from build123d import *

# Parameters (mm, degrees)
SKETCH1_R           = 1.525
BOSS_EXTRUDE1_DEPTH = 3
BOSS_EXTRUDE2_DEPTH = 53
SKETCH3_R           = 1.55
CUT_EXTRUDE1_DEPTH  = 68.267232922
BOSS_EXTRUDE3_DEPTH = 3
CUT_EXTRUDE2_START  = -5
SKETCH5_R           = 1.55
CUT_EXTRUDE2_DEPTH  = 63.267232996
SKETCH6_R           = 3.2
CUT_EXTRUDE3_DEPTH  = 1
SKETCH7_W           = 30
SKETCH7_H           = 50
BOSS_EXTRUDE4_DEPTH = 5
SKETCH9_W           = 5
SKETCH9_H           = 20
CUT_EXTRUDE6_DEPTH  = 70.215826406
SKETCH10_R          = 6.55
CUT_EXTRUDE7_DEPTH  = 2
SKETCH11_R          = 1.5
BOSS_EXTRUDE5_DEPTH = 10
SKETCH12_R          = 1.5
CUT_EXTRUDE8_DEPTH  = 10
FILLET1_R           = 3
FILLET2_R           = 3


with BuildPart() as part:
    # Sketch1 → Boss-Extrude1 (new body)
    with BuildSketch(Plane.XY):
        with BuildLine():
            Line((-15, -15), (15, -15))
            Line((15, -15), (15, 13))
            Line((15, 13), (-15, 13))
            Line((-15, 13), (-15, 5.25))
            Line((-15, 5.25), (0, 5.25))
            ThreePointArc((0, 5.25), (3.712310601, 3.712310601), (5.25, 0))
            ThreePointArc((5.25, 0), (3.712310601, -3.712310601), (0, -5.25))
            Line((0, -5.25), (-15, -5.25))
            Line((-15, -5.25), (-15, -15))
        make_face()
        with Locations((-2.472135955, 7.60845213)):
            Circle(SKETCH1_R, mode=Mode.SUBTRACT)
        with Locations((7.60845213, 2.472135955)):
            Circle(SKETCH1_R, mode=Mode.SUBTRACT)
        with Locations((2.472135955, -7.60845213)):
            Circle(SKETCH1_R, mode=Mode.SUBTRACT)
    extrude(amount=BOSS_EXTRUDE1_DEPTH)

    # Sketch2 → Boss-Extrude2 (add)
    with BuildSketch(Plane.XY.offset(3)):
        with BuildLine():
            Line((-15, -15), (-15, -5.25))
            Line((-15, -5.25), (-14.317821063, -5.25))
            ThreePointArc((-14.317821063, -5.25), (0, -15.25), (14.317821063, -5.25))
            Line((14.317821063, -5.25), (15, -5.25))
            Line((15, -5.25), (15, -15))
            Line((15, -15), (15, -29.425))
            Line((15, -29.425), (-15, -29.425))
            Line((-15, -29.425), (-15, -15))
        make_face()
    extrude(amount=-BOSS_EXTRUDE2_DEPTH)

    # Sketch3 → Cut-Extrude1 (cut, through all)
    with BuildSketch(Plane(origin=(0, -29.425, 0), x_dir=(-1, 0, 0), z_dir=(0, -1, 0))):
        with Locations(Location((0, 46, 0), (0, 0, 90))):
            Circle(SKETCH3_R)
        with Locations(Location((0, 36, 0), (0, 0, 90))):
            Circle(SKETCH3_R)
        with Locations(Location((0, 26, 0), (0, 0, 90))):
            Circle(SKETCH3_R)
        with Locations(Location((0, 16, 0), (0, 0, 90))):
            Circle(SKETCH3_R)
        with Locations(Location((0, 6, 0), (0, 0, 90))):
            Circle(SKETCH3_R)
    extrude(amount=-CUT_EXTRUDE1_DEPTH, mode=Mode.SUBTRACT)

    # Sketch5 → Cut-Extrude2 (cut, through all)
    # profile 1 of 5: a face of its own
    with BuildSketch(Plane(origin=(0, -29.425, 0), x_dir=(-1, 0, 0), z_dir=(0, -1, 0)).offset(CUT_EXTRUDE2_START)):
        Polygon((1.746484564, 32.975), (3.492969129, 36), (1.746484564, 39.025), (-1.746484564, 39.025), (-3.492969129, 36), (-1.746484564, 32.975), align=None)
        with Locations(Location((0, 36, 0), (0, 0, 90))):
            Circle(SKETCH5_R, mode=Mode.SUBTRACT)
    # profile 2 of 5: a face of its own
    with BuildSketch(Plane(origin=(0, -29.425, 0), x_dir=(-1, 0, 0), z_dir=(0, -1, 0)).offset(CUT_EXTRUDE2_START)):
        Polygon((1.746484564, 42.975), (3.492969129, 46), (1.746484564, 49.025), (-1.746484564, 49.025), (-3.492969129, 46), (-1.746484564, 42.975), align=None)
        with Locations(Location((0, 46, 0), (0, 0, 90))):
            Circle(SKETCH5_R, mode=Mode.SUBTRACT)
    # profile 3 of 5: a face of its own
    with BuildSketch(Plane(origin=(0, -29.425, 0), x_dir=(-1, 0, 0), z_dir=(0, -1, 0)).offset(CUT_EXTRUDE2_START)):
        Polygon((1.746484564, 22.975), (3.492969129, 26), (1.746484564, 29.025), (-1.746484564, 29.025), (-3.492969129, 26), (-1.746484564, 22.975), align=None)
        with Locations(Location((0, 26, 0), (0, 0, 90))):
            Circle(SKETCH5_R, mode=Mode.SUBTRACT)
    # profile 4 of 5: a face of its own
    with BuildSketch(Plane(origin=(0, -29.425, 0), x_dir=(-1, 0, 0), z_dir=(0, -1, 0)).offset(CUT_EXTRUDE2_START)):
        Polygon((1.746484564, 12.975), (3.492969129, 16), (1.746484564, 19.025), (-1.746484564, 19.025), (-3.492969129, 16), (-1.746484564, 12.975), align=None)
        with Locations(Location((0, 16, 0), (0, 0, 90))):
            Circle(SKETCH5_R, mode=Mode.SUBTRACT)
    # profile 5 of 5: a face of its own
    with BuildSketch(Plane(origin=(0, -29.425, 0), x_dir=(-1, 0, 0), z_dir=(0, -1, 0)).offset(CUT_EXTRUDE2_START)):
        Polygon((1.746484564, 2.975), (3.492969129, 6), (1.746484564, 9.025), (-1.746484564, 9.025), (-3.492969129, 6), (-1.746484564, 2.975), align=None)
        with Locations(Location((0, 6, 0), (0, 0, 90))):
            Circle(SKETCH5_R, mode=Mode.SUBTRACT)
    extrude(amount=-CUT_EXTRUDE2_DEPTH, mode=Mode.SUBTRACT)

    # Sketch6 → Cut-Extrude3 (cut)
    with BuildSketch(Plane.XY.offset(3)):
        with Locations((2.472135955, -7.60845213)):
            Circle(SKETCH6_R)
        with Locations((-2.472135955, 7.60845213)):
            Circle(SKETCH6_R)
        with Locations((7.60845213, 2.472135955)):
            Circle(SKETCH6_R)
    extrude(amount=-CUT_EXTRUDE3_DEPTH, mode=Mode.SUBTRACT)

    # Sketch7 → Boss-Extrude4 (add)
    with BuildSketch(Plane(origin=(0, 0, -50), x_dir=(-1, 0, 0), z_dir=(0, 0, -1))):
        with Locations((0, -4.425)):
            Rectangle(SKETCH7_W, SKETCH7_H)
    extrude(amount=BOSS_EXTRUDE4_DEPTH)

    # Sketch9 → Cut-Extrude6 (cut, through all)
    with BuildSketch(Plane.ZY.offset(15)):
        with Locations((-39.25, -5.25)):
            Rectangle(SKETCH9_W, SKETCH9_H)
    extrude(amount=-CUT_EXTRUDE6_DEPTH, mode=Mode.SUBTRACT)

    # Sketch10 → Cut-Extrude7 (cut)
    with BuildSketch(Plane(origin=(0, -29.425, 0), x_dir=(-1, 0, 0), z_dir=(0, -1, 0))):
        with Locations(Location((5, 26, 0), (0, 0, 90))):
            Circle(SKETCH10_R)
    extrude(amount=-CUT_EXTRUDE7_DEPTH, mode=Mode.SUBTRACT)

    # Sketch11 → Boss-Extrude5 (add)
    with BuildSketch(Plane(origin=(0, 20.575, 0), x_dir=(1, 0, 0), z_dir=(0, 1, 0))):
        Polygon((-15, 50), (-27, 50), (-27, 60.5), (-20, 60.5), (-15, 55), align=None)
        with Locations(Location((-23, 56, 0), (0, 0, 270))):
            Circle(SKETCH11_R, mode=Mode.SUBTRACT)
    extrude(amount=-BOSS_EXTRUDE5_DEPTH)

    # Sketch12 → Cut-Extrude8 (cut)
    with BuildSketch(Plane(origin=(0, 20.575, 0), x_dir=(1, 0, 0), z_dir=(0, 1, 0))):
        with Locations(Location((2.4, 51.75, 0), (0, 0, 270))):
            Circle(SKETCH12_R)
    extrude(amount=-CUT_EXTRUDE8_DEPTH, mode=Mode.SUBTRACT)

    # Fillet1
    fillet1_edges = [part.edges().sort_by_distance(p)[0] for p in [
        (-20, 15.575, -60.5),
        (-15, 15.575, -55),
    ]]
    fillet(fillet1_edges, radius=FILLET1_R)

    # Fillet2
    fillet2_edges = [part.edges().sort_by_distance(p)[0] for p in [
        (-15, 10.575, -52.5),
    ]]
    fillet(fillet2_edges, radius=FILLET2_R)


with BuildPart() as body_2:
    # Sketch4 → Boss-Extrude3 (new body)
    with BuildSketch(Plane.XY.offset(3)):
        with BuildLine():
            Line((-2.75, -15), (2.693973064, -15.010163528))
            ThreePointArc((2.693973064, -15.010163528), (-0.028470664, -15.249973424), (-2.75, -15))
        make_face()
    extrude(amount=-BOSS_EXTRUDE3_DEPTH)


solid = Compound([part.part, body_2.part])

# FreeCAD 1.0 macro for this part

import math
import FreeCAD as App
import Part
import Sketcher
from FreeCAD import Vector
Q = App.Units.Quantity


def edges_at(feature, points):
    """Names of the edges that pass closest to the given points."""
    edges = feature.Shape.Edges
    near = lambda p: min(range(len(edges)), key=lambda i: edges[i].distToShape(Part.Vertex(*p))[0])
    return sorted({f"Edge{near(p) + 1}" for p in points})


def add_polygon(sketch, points):
    """Adds a closed chain of lines whose ends are joined by coincident constraints."""
    first, n = sketch.GeometryCount, len(points)
    for a, b in zip(points, points[1:] + points[:1]):
        sketch.addGeometry(Part.LineSegment(App.Vector(*a, 0), App.Vector(*b, 0)), False)
    for i in range(n):
        sketch.addConstraint(Sketcher.Constraint("Coincident", first + i, 2, first + (i + 1) % n, 1))

doc = App.newDocument("Part")
body = doc.addObject("PartDesign::Body", "Body")

sketch1 = body.newObject("Sketcher::SketchObject", "Sketch")
sketch1.AttachmentSupport = (doc.getObject("XY_Plane"), [""])
sketch1.MapMode = "FlatFace"
sketch1.addGeometry([
    Part.LineSegment(Vector(-15, -15, 0), Vector(15, -15, 0)),
    Part.LineSegment(Vector(15, -15, 0), Vector(15, 13, 0)),
    Part.LineSegment(Vector(15, 13, 0), Vector(-15, 13, 0)),
    Part.LineSegment(Vector(-15, 13, 0), Vector(-15, 5.25, 0)),
    Part.LineSegment(Vector(-15, 5.25, 0), Vector(0, 5.25, 0)),
    Part.ArcOfCircle(Part.Circle(Vector(0, 0, 0), Vector(0, 0, 1), 5.25), math.radians(0), math.radians(90)),
    Part.ArcOfCircle(Part.Circle(Vector(0, 0, 0), Vector(0, 0, 1), 5.25), math.radians(-90), math.radians(0)),
    Part.LineSegment(Vector(0, -5.25, 0), Vector(-15, -5.25, 0)),
    Part.LineSegment(Vector(-15, -5.25, 0), Vector(-15, -15, 0)),
    Part.Circle(Vector(2.472136, -7.608452, 0), Vector(0, 0, 1), 1.525),
    Part.Circle(Vector(-2.472136, 7.608452, 0), Vector(0, 0, 1), 1.525),
    Part.Circle(Vector(7.608452, 2.472136, 0), Vector(0, 0, 1), 1.525),
], False)
sketch1.addConstraint([
    Sketcher.Constraint("Coincident", 0, 2, 1, 1),
    Sketcher.Constraint("Coincident", 1, 2, 2, 1),
    Sketcher.Constraint("Coincident", 2, 2, 3, 1),
    Sketcher.Constraint("Coincident", 3, 2, 4, 1),
    Sketcher.Constraint("Tangent", 4, 2, 5, 2),
    Sketcher.Constraint("Tangent", 5, 1, 6, 2),
    Sketcher.Constraint("Tangent", 6, 1, 7, 1),
    Sketcher.Constraint("Coincident", 7, 2, 8, 1),
    Sketcher.Constraint("Coincident", 8, 2, 0, 1),
    Sketcher.Constraint("Horizontal", 0),
    Sketcher.Constraint("Vertical", 1),
    Sketcher.Constraint("Horizontal", 2),
    Sketcher.Constraint("Vertical", 3),
    Sketcher.Constraint("Horizontal", 4),
    Sketcher.Constraint("Horizontal", 7),
    Sketcher.Constraint("Vertical", 8),
    Sketcher.Constraint("Coincident", 5, 3, -1, 1),
    Sketcher.Constraint("Equal", 5, 6),
    Sketcher.Constraint("Equal", 9, 10),
    Sketcher.Constraint("Equal", 10, 11),
    Sketcher.Constraint("Symmetric", 9, 3, 10, 3, -1, 1),
    Sketcher.Constraint("PointOnObject", 5, 1, -1),
    Sketcher.Constraint("Vertical", 3, 2, 7, 2),
    Sketcher.Constraint("Diameter", 9, Q("3.05 mm")),
    Sketcher.Constraint("DistanceX", 0, 1, 0, 2, Q("30 mm")),
    Sketcher.Constraint("DistanceX", 4, 1, 4, 2, Q("15 mm")),
    Sketcher.Constraint("DistanceY", 1, 1, 1, 2, Q("28 mm")),
    Sketcher.Constraint("Radius", 5, Q("5.25 mm")),
    Sketcher.Constraint("DistanceY", 0, 2, -1, 1, Q("15 mm")),
    Sketcher.Constraint("DistanceX", 10, 3, 9, 3, Q("4.944272 mm")),
    Sketcher.Constraint("DistanceY", 9, 3, 11, 3, Q("10.080588 mm")),
    Sketcher.Constraint("DistanceX", 10, 3, 11, 3, Q("10.080588 mm")),
    Sketcher.Constraint("DistanceY", 9, 3, -1, 1, Q("7.608452 mm")),
])
pad1 = body.newObject("PartDesign::Pad", "Pad")
pad1.Profile = sketch1
pad1.Length = 3

sketch2 = body.newObject("Sketcher::SketchObject", "Sketch001")
sketch2.AttachmentSupport = (doc.getObject("XY_Plane"), [""])
sketch2.MapMode = "FlatFace"
sketch2.AttachmentOffset = App.Placement(Vector(0, 0, 3), App.Rotation())
sketch2.addGeometry([
    Part.LineSegment(Vector(-14.317821, -5.25, 0), Vector(-15, -5.25, 0)),
    Part.LineSegment(Vector(-15, -5.25, 0), Vector(-15, -29.425, 0)),
    Part.LineSegment(Vector(-15, -29.425, 0), Vector(15, -29.425, 0)),
    Part.LineSegment(Vector(15, -29.425, 0), Vector(15, -5.25, 0)),
    Part.LineSegment(Vector(15, -5.25, 0), Vector(14.317821, -5.25, 0)),
    Part.ArcOfCircle(Part.Circle(Vector(0, 0, 0), Vector(0, 0, 1), 15.25), math.radians(-159.86323), math.radians(-20.13677)),
], False)
sketch2.addConstraint([
    Sketcher.Constraint("Coincident", 0, 2, 1, 1),
    Sketcher.Constraint("Coincident", 1, 2, 2, 1),
    Sketcher.Constraint("Coincident", 2, 2, 3, 1),
    Sketcher.Constraint("Coincident", 3, 2, 4, 1),
    Sketcher.Constraint("Coincident", 4, 2, 5, 2),
    Sketcher.Constraint("Coincident", 5, 1, 0, 1),
    Sketcher.Constraint("Horizontal", 0),
    Sketcher.Constraint("Vertical", 1),
    Sketcher.Constraint("Horizontal", 2),
    Sketcher.Constraint("Vertical", 3),
    Sketcher.Constraint("Horizontal", 4),
    Sketcher.Constraint("Coincident", 5, 3, -1, 1),
    Sketcher.Constraint("Symmetric", 0, 2, 3, 2, -2),
    Sketcher.Constraint("DistanceX", 2, 1, 2, 2, Q("30 mm")),
    Sketcher.Constraint("Radius", 5, Q("15.25 mm")),
    Sketcher.Constraint("DistanceY", 1, 2, 1, 1, Q("24.175 mm")),
    Sketcher.Constraint("DistanceY", 0, 2, -1, 1, Q("5.25 mm")),
])
pad2 = body.newObject("PartDesign::Pad", "Pad001")
pad2.Profile = sketch2
pad2.Length = 53
pad2.Reversed = True

sketch3 = body.newObject("Sketcher::SketchObject", "Sketch002")
sketch3.AttachmentSupport = (doc.getObject("XZ_Plane"), [""])
sketch3.MapMode = "FlatFace"
sketch3.AttachmentOffset = App.Placement(Vector(0, 0, 29.425), App.Rotation())
sketch3.addGeometry([
    Part.Circle(Vector(0, -46, 0), Vector(0, 0, 1), 1.55),
    Part.Circle(Vector(0, -36, 0), Vector(0, 0, 1), 1.55),
    Part.Circle(Vector(0, -26, 0), Vector(0, 0, 1), 1.55),
    Part.Circle(Vector(0, -16, 0), Vector(0, 0, 1), 1.55),
    Part.Circle(Vector(0, -6, 0), Vector(0, 0, 1), 1.55),
], False)
sketch3.addConstraint([
    Sketcher.Constraint("Equal", 0, 1),
    Sketcher.Constraint("Equal", 1, 2),
    Sketcher.Constraint("Equal", 2, 3),
    Sketcher.Constraint("Equal", 3, 4),
    Sketcher.Constraint("PointOnObject", 0, 3, -2),
    Sketcher.Constraint("PointOnObject", 1, 3, -2),
    Sketcher.Constraint("PointOnObject", 2, 3, -2),
    Sketcher.Constraint("PointOnObject", 3, 3, -2),
    Sketcher.Constraint("PointOnObject", 4, 3, -2),
    Sketcher.Constraint("Diameter", 0, Q("3.1 mm")),
    Sketcher.Constraint("DistanceY", 0, 3, -1, 1, Q("46 mm")),
    Sketcher.Constraint("DistanceY", 1, 3, -1, 1, Q("36 mm")),
    Sketcher.Constraint("DistanceY", 2, 3, -1, 1, Q("26 mm")),
    Sketcher.Constraint("DistanceY", 3, 3, -1, 1, Q("16 mm")),
    Sketcher.Constraint("DistanceY", 4, 3, -1, 1, Q("6 mm")),
])
pocket1 = body.newObject("PartDesign::Pocket", "Pocket")
pocket1.Profile = sketch3
pocket1.Type = "ThroughAll"

sketch4 = body.newObject("Sketcher::SketchObject", "Sketch003")
sketch4.AttachmentSupport = (doc.getObject("XZ_Plane"), [""])
sketch4.MapMode = "FlatFace"
sketch4.AttachmentOffset = App.Placement(Vector(0, 0, 24.425), App.Rotation())
add_polygon(sketch4, [(-1.746485, -32.975), (-3.492969, -36), (-1.746485, -39.025), (1.746485, -39.025), (3.492969, -36), (1.746485, -32.975)])
sketch4.addGeometry(Part.Circle(Vector(0, -36, 0), Vector(0, 0, 1), 1.55), False)
add_polygon(sketch4, [(-1.746485, -42.975), (-3.492969, -46), (-1.746485, -49.025), (1.746485, -49.025), (3.492969, -46), (1.746485, -42.975)])
sketch4.addGeometry(Part.Circle(Vector(0, -46, 0), Vector(0, 0, 1), 1.55), False)
add_polygon(sketch4, [(-1.746485, -22.975), (-3.492969, -26), (-1.746485, -29.025), (1.746485, -29.025), (3.492969, -26), (1.746485, -22.975)])
sketch4.addGeometry(Part.Circle(Vector(0, -26, 0), Vector(0, 0, 1), 1.55), False)
add_polygon(sketch4, [(-1.746485, -12.975), (-3.492969, -16), (-1.746485, -19.025), (1.746485, -19.025), (3.492969, -16), (1.746485, -12.975)])
sketch4.addGeometry(Part.Circle(Vector(0, -16, 0), Vector(0, 0, 1), 1.55), False)
add_polygon(sketch4, [(-1.746485, -2.975), (-3.492969, -6), (-1.746485, -9.025), (1.746485, -9.025), (3.492969, -6), (1.746485, -2.975)])
sketch4.addGeometry(Part.Circle(Vector(0, -6, 0), Vector(0, 0, 1), 1.55), False)
sketch4.addConstraint([
    Sketcher.Constraint("Horizontal", 2),
    Sketcher.Constraint("Horizontal", 5),
    Sketcher.Constraint("Horizontal", 9),
    Sketcher.Constraint("Horizontal", 12),
    Sketcher.Constraint("Horizontal", 16),
    Sketcher.Constraint("Horizontal", 19),
    Sketcher.Constraint("Horizontal", 23),
    Sketcher.Constraint("Horizontal", 26),
    Sketcher.Constraint("Horizontal", 30),
    Sketcher.Constraint("Horizontal", 33),
    Sketcher.Constraint("Equal", 6, 13),
    Sketcher.Constraint("Equal", 13, 20),
    Sketcher.Constraint("Equal", 20, 27),
    Sketcher.Constraint("Equal", 27, 34),
    Sketcher.Constraint("Symmetric", 0, 2, 3, 2, -2),
    Sketcher.Constraint("Symmetric", 7, 2, 10, 2, -2),
    Sketcher.Constraint("Symmetric", 14, 2, 17, 2, -2),
    Sketcher.Constraint("Symmetric", 21, 2, 24, 2, -2),
    Sketcher.Constraint("Symmetric", 28, 2, 31, 2, -2),
    Sketcher.Constraint("PointOnObject", 6, 3, -2),
    Sketcher.Constraint("PointOnObject", 13, 3, -2),
    Sketcher.Constraint("PointOnObject", 20, 3, -2),
    Sketcher.Constraint("PointOnObject", 27, 3, -2),
    Sketcher.Constraint("PointOnObject", 34, 3, -2),
    Sketcher.Constraint("Parallel", 0, 3),
    Sketcher.Constraint("Parallel", 1, 4),
    Sketcher.Constraint("Parallel", 3, 7),
    Sketcher.Constraint("Parallel", 4, 8),
    Sketcher.Constraint("Parallel", 7, 10),
    Sketcher.Constraint("Parallel", 8, 11),
    Sketcher.Constraint("Parallel", 10, 14),
    Sketcher.Constraint("Parallel", 11, 15),
    Sketcher.Constraint("Parallel", 14, 17),
    Sketcher.Constraint("Parallel", 15, 18),
    Sketcher.Constraint("Parallel", 17, 21),
    Sketcher.Constraint("Parallel", 18, 22),
    Sketcher.Constraint("Parallel", 21, 24),
    Sketcher.Constraint("Parallel", 22, 25),
    Sketcher.Constraint("Parallel", 24, 28),
    Sketcher.Constraint("Parallel", 25, 29),
    Sketcher.Constraint("Parallel", 28, 31),
    Sketcher.Constraint("Parallel", 29, 32),
    Sketcher.Constraint("Horizontal", 6, 3, 0, 2),
    Sketcher.Constraint("Horizontal", 13, 3, 7, 2),
    Sketcher.Constraint("Horizontal", 20, 3, 14, 2),
    Sketcher.Constraint("Horizontal", 27, 3, 21, 2),
    Sketcher.Constraint("Horizontal", 34, 3, 28, 2),
    Sketcher.Constraint("Vertical", 2, 2, 4, 2),
    Sketcher.Constraint("Vertical", 1, 2, 5, 2),
    Sketcher.Constraint("Vertical", 0, 2, 7, 2),
    Sketcher.Constraint("Vertical", 5, 2, 8, 2),
    Sketcher.Constraint("Vertical", 9, 2, 11, 2),
    Sketcher.Constraint("Vertical", 7, 2, 14, 2),
    Sketcher.Constraint("Vertical", 12, 2, 15, 2),
    Sketcher.Constraint("Vertical", 16, 2, 18, 2),
    Sketcher.Constraint("Vertical", 14, 2, 21, 2),
    Sketcher.Constraint("Vertical", 19, 2, 22, 2),
    Sketcher.Constraint("Vertical", 23, 2, 25, 2),
    Sketcher.Constraint("Vertical", 21, 2, 28, 2),
    Sketcher.Constraint("Vertical", 26, 2, 29, 2),
    Sketcher.Constraint("Vertical", 30, 2, 32, 2),
    Sketcher.Constraint("Diameter", 6, Q("3.1 mm")),
    Sketcher.Constraint("Angle", 0, Q("-120 deg")),
    Sketcher.Constraint("DistanceY", 6, 3, -1, 1, Q("36 mm")),
    Sketcher.Constraint("DistanceY", 13, 3, -1, 1, Q("46 mm")),
    Sketcher.Constraint("DistanceY", 20, 3, -1, 1, Q("26 mm")),
    Sketcher.Constraint("DistanceY", 27, 3, -1, 1, Q("16 mm")),
    Sketcher.Constraint("DistanceY", 34, 3, -1, 1, Q("6 mm")),
    Sketcher.Constraint("DistanceY", 2, 2, 4, 2, Q("6.05 mm")),
    Sketcher.Constraint("DistanceX", 2, 1, 2, 2, Q("3.492969 mm")),
])
pocket2 = body.newObject("PartDesign::Pocket", "Pocket001")
pocket2.Profile = sketch4
pocket2.Length = 63.267233

sketch5 = body.newObject("Sketcher::SketchObject", "Sketch004")
sketch5.AttachmentSupport = (doc.getObject("XY_Plane"), [""])
sketch5.MapMode = "FlatFace"
sketch5.AttachmentOffset = App.Placement(Vector(0, 0, 3), App.Rotation())
sketch5.addGeometry([
    Part.Circle(Vector(2.472136, -7.608452, 0), Vector(0, 0, 1), 3.2),
    Part.Circle(Vector(-2.472136, 7.608452, 0), Vector(0, 0, 1), 3.2),
    Part.Circle(Vector(7.608452, 2.472136, 0), Vector(0, 0, 1), 3.2),
], False)
sketch5.addConstraint([
    Sketcher.Constraint("Equal", 0, 1),
    Sketcher.Constraint("Equal", 1, 2),
    Sketcher.Constraint("Symmetric", 0, 3, 1, 3, -1, 1),
    Sketcher.Constraint("Diameter", 0, Q("6.4 mm")),
    Sketcher.Constraint("DistanceX", 1, 3, 0, 3, Q("4.944272 mm")),
    Sketcher.Constraint("DistanceY", 0, 3, 2, 3, Q("10.080588 mm")),
    Sketcher.Constraint("DistanceX", 1, 3, 2, 3, Q("10.080588 mm")),
    Sketcher.Constraint("DistanceY", 0, 3, -1, 1, Q("7.608452 mm")),
])
pocket3 = body.newObject("PartDesign::Pocket", "Pocket002")
pocket3.Profile = sketch5
pocket3.Length = 1

sketch6 = body.newObject("Sketcher::SketchObject", "Sketch005")
sketch6.AttachmentSupport = (doc.getObject("XY_Plane"), [""])
sketch6.MapMode = "FlatFace"
sketch6.AttachmentOffset = App.Placement(Vector(0, 0, -50), App.Rotation())
add_polygon(sketch6, [(15, 20.575), (15, -29.425), (-15, -29.425), (-15, 20.575)])
sketch6.addConstraint([
    Sketcher.Constraint("Vertical", 0),
    Sketcher.Constraint("Horizontal", 1),
    Sketcher.Constraint("Vertical", 2),
    Sketcher.Constraint("Horizontal", 3),
    Sketcher.Constraint("DistanceX", 1, 2, 1, 1, Q("30 mm")),
    Sketcher.Constraint("DistanceY", 0, 2, 0, 1, Q("50 mm")),
    Sketcher.Constraint("DistanceX", -1, 1, 0, 2, Q("15 mm")),
    Sketcher.Constraint("DistanceY", 0, 2, -1, 1, Q("29.425 mm")),
])
pad3 = body.newObject("PartDesign::Pad", "Pad002")
pad3.Profile = sketch6
pad3.Length = 5
pad3.Reversed = True

sketch7 = body.newObject("Sketcher::SketchObject", "Sketch006")
sketch7.AttachmentSupport = (doc.getObject("YZ_Plane"), [""])
sketch7.MapMode = "FlatFace"
sketch7.AttachmentOffset = App.Placement(Vector(0, 0, -15), App.Rotation())
add_polygon(sketch7, [(4.75, -41.75), (-15.25, -41.75), (-15.25, -36.75), (4.75, -36.75)])
sketch7.addConstraint([
    Sketcher.Constraint("Horizontal", 0),
    Sketcher.Constraint("Vertical", 1),
    Sketcher.Constraint("Horizontal", 2),
    Sketcher.Constraint("Vertical", 3),
    Sketcher.Constraint("DistanceX", 0, 2, 0, 1, Q("20 mm")),
    Sketcher.Constraint("DistanceY", 1, 1, 1, 2, Q("5 mm")),
    Sketcher.Constraint("DistanceX", 0, 2, -1, 1, Q("15.25 mm")),
    Sketcher.Constraint("DistanceY", 0, 2, -1, 1, Q("41.75 mm")),
])
pocket4 = body.newObject("PartDesign::Pocket", "Pocket003")
pocket4.Profile = sketch7
pocket4.Type = "ThroughAll"
pocket4.Reversed = True

sketch8 = body.newObject("Sketcher::SketchObject", "Sketch007")
sketch8.AttachmentSupport = (doc.getObject("XZ_Plane"), [""])
sketch8.MapMode = "FlatFace"
sketch8.AttachmentOffset = App.Placement(Vector(0, 0, 29.425), App.Rotation())
sketch8.addGeometry(Part.Circle(Vector(-5, -26, 0), Vector(0, 0, 1), 6.55), False)
sketch8.addConstraint([
    Sketcher.Constraint("Diameter", 0, Q("13.1 mm")),
    Sketcher.Constraint("DistanceX", 0, 3, -1, 1, Q("5 mm")),
    Sketcher.Constraint("DistanceY", 0, 3, -1, 1, Q("26 mm")),
])
pocket5 = body.newObject("PartDesign::Pocket", "Pocket004")
pocket5.Profile = sketch8
pocket5.Length = 2

sketch9 = body.newObject("Sketcher::SketchObject", "Sketch008")
sketch9.AttachmentSupport = (doc.getObject("XZ_Plane"), [""])
sketch9.MapMode = "FlatFace"
sketch9.AttachmentOffset = App.Placement(Vector(0, 0, -20.575), App.Rotation())
add_polygon(sketch9, [(-27, -50), (-15, -50), (-15, -55), (-20, -60.5), (-27, -60.5)])
sketch9.addGeometry(Part.Circle(Vector(-23, -56, 0), Vector(0, 0, 1), 1.5), False)
sketch9.addConstraint([
    Sketcher.Constraint("Horizontal", 0),
    Sketcher.Constraint("Vertical", 1),
    Sketcher.Constraint("Horizontal", 3),
    Sketcher.Constraint("Vertical", 4),
    Sketcher.Constraint("Diameter", 5, Q("3 mm")),
    Sketcher.Constraint("DistanceX", 0, 1, 0, 2, Q("12 mm")),
    Sketcher.Constraint("DistanceX", 3, 2, 3, 1, Q("7 mm")),
    Sketcher.Constraint("DistanceY", 1, 2, 1, 1, Q("5 mm")),
    Sketcher.Constraint("DistanceY", 4, 1, 4, 2, Q("10.5 mm")),
    Sketcher.Constraint("DistanceX", 5, 3, -1, 1, Q("23 mm")),
    Sketcher.Constraint("DistanceY", 5, 3, -1, 1, Q("56 mm")),
    Sketcher.Constraint("DistanceX", 0, 2, -1, 1, Q("15 mm")),
    Sketcher.Constraint("DistanceY", 0, 2, -1, 1, Q("50 mm")),
])
pad4 = body.newObject("PartDesign::Pad", "Pad003")
pad4.Profile = sketch9
pad4.Length = 10

sketch10 = body.newObject("Sketcher::SketchObject", "Sketch009")
sketch10.AttachmentSupport = (doc.getObject("XZ_Plane"), [""])
sketch10.MapMode = "FlatFace"
sketch10.AttachmentOffset = App.Placement(Vector(0, 0, -20.575), App.Rotation())
sketch10.addGeometry(Part.Circle(Vector(2.4, -51.75, 0), Vector(0, 0, 1), 1.5), False)
sketch10.addConstraint([
    Sketcher.Constraint("Diameter", 0, Q("3 mm")),
    Sketcher.Constraint("DistanceX", -1, 1, 0, 3, Q("2.4 mm")),
    Sketcher.Constraint("DistanceY", 0, 3, -1, 1, Q("51.75 mm")),
])
pocket6 = body.newObject("PartDesign::Pocket", "Pocket005")
pocket6.Profile = sketch10
pocket6.Length = 10
pocket6.Reversed = True
doc.recompute()

fillet = body.newObject("PartDesign::Fillet", "Fillet")
fillet.Base = (pocket6, edges_at(pocket6, [(-20, 15.575, -60.5), (-15, 15.575, -55)]))
fillet.Radius = 3
doc.recompute()

fillet2 = body.newObject("PartDesign::Fillet", "Fillet001")
fillet2.Base = (fillet, edges_at(fillet, [(-15, 10.575, -52.5)]))
fillet2.Radius = 3
body2 = doc.addObject("PartDesign::Body", "Body001")

sketch11 = body2.newObject("Sketcher::SketchObject", "Sketch010")
sketch11.AttachmentSupport = (doc.getObject("XY_Plane001"), [""])
sketch11.MapMode = "FlatFace"
sketch11.AttachmentOffset = App.Placement(Vector(0, 0, 3), App.Rotation())
sketch11.addGeometry([
    Part.LineSegment(Vector(2.693973, -15.010164, 0), Vector(-2.75, -15, 0)),
    Part.ArcOfCircle(Part.Circle(Vector(0, 0, 0), Vector(0, 0, 1), 15.25), math.radians(-100.388858), math.radians(-79.825077)),
], False)
sketch11.addConstraint([
    Sketcher.Constraint("Coincident", 0, 1, 1, 2),
    Sketcher.Constraint("Coincident", 1, 1, 0, 2),
    Sketcher.Constraint("Coincident", 1, 3, -1, 1),
    Sketcher.Constraint("Radius", 1, Q("15.25 mm")),
    Sketcher.Constraint("DistanceY", 1, 1, -1, 1, Q("15 mm")),
    Sketcher.Constraint("Distance", 0, Q("5.443983 mm")),
])
pad5 = body2.newObject("PartDesign::Pad", "Pad004")
pad5.Profile = sketch11
pad5.Length = 3
pad5.Reversed = True

doc.recompute()
